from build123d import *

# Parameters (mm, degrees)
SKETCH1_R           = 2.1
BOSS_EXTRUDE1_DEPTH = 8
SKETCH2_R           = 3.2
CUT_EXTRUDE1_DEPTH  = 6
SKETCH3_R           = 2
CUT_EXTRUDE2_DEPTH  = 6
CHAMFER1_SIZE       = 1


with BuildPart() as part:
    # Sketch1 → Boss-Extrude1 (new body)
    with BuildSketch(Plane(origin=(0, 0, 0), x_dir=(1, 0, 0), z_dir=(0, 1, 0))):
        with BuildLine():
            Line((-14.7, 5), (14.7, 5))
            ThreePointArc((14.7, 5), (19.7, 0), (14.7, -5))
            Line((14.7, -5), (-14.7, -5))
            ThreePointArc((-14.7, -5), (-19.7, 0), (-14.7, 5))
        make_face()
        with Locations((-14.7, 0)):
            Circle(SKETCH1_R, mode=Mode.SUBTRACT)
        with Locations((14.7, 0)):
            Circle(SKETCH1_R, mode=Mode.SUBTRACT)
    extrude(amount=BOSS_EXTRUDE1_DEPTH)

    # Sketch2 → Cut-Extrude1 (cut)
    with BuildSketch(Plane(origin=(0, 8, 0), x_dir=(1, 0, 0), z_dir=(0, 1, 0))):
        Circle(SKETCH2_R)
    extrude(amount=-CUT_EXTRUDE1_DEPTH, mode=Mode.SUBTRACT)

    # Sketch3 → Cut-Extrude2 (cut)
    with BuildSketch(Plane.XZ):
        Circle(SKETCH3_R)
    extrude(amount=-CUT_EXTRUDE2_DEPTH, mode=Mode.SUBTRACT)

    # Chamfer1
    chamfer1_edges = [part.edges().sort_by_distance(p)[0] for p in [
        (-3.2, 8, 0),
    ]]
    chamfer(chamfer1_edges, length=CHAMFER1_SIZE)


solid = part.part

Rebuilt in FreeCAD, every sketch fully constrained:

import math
import FreeCAD as App
import Part
import Sketcher
from FreeCAD import Vector


def edges_at(feature, points):
    """Names of the edges that pass closest to the given points."""
    edges = feature.Shape.Edges
    near = lambda p: min(range(len(edges)), key=lambda i: edges[i].distToShape(Part.Vertex(*p))[0])
    return sorted({f"Edge{near(p) + 1}" for p in points})

doc = App.newDocument("Part")
body = doc.addObject("PartDesign::Body", "Body")

# Sketch on XZ plane
sketch1 = body.newObject("Sketcher::SketchObject", "Sketch")
sketch1.AttachmentSupport = (doc.getObject("XZ_Plane"), [""])
sketch1.MapMode = "FlatFace"
sketch1.addGeometry([
    Part.LineSegment(Vector(14.7, -5, 0), Vector(-14.7, -5, 0)),  # 0
    Part.ArcOfCircle(Part.Circle(Vector(-14.7, 0, 0), Vector(0, 0, 1), 5), math.radians(90), math.radians(270)),  # 1
    Part.LineSegment(Vector(-14.7, 5, 0), Vector(14.7, 5, 0)),  # 2
    Part.ArcOfCircle(Part.Circle(Vector(14.7, 0, 0), Vector(0, 0, 1), 5), math.radians(-90), math.radians(90)),  # 3
    Part.Circle(Vector(14.7, 0, 0), Vector(0, 0, 1), 2.1),  # 4
    Part.Circle(Vector(-14.7, 0, 0), Vector(0, 0, 1), 2.1),  # 5
], False)
sketch1.addConstraint([
    Sketcher.Constraint("Tangent", 0, 2, 1, 2),
    Sketcher.Constraint("Tangent", 1, 1, 2, 1),
    Sketcher.Constraint("Tangent", 2, 2, 3, 2),
    Sketcher.Constraint("Tangent", 3, 1, 0, 1),
    Sketcher.Constraint("Horizontal", 0),
    Sketcher.Constraint("Horizontal", 2),
    Sketcher.Constraint("Coincident", 4, 3, 3, 3),
    Sketcher.Constraint("Coincident", 5, 3, 1, 3),
    Sketcher.Constraint("Equal", 4, 5),
    Sketcher.Constraint("Symmetric", 1, 3, 3, 3, -1, 1),
    Sketcher.Constraint("Radius", 1, 5.0),
    Sketcher.Constraint("Diameter", 4, 4.2),
    Sketcher.Constraint("DistanceX", 0, 2, 0, 1, 29.4),
])
pad1 = body.newObject("PartDesign::Pad", "Pad")
pad1.Profile = sketch1
pad1.Length = 8
pad1.Reversed = True

# Sketch on XZ plane
sketch2 = body.newObject("Sketcher::SketchObject", "Sketch001")
sketch2.AttachmentSupport = (doc.getObject("XZ_Plane"), [""])
sketch2.MapMode = "FlatFace"
sketch2.AttachmentOffset = App.Placement(Vector(0, 0, -8), App.Rotation())
sketch2.addGeometry(Part.Circle(Vector(0, 0, 0), Vector(0, 0, 1), 3.2), False)
sketch2.addConstraint([
    Sketcher.Constraint("Coincident", 0, 3, -1, 1),
    Sketcher.Constraint("Diameter", 0, 6.4),
])
pocket1 = body.newObject("PartDesign::Pocket", "Pocket")
pocket1.Profile = sketch2
pocket1.Length = 6
pocket1.Reversed = True

# Sketch on XZ plane
sketch3 = body.newObject("Sketcher::SketchObject", "Sketch002")
sketch3.AttachmentSupport = (doc.getObject("XZ_Plane"), [""])
sketch3.MapMode = "FlatFace"
sketch3.addGeometry(Part.Circle(Vector(0, 0, 0), Vector(0, 0, 1), 2), False)
sketch3.addConstraint([
    Sketcher.Constraint("Coincident", 0, 3, -1, 1),
    Sketcher.Constraint("Diameter", 0, 4.0),
])
pocket2 = body.newObject("PartDesign::Pocket", "Pocket001")
pocket2.Profile = sketch3
pocket2.Length = 6
doc.recompute()

chamfer = body.newObject("PartDesign::Chamfer", "Chamfer")
chamfer.Base = (pocket2, edges_at(pocket2, [(-3.2, 8, 0)]))
chamfer.Size = 1

doc.recompute()
